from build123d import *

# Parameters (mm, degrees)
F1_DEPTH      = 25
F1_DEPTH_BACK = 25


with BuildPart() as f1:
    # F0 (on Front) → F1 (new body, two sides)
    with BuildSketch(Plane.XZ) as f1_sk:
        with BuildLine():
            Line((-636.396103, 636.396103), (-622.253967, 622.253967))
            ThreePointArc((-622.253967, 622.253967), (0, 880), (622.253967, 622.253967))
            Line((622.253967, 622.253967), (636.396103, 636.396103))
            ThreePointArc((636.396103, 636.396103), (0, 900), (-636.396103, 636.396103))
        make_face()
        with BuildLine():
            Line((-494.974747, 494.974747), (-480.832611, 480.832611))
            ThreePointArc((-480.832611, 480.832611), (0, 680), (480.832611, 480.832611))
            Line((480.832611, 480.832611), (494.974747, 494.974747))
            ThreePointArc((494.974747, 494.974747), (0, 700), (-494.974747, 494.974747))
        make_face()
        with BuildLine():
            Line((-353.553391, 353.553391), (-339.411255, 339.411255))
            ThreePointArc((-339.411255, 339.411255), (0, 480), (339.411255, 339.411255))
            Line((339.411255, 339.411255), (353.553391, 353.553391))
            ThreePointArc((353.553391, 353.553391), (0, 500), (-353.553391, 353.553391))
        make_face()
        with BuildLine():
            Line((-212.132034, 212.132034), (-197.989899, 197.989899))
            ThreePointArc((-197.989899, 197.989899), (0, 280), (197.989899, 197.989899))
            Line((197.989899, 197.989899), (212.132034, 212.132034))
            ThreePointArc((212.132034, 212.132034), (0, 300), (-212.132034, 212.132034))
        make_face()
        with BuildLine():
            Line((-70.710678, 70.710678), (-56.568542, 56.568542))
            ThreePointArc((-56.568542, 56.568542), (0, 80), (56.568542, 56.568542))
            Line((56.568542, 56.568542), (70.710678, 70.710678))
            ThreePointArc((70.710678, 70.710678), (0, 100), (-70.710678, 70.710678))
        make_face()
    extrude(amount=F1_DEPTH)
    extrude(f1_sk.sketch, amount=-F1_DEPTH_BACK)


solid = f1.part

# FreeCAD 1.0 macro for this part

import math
import FreeCAD as App
import Part
import Sketcher

V = App.Vector

doc = App.newDocument("Part")
params = doc.addObject("Spreadsheet::Sheet", "Params")
for row, (alias, value) in enumerate([
    ("sketch1_radius", "900 mm"),
    ("sketch1_radius2", "679.999999 mm"),
    ("sketch1_radius3", "700.000001 mm"),
    ("sketch1_radius4", "480 mm"),
    ("sketch1_radius5", "280.000001 mm"),
    ("pad1_length", "25 mm"),
    ("pad1_length2", "25 mm"),
], start=1):
    params.set(f"A{row}", alias)
    params.set(f"B{row}", "=" + value)
    params.setAlias(f"B{row}", alias)

body = doc.addObject("PartDesign::Body", "Body")
body.AllowCompound = True

# Sketch on XZ plane
sketch1 = doc.addObject("Sketcher::SketchObject", "Sketch")
body.addObject(sketch1)
sketch1.AttachmentSupport = (doc.XZ_Plane, [""])
sketch1.MapMode = "FlatFace"
sketch1.addGeometry([
    Part.LineSegment(V(-636.396103, 636.396103, 0), V(-622.253967, 622.253967, 0)),  # 0
    Part.ArcOfCircle(Part.Circle(V(0, 0.000002, 0), V(0, 0, 1), 879.999998), math.radians(45), math.radians(135)),  # 1
    Part.LineSegment(V(622.253967, 622.253967, 0), V(636.396103, 636.396103, 0)),  # 2
    Part.ArcOfCircle(Part.Circle(V(0, 0, 0), V(0, 0, 1), 900), math.radians(45), math.radians(135)),  # 3
    Part.LineSegment(V(-494.974747, 494.974747, 0), V(-480.832611, 480.832611, 0)),  # 4
    Part.ArcOfCircle(Part.Circle(V(0, 0.000001, 0), V(0, 0, 1), 679.999999), math.radians(45), math.radians(135)),  # 5
    Part.LineSegment(V(480.832611, 480.832611, 0), V(494.974747, 494.974747, 0)),  # 6
    Part.ArcOfCircle(Part.Circle(V(0, -0.000001, 0), V(0, 0, 1), 700.000001), math.radians(45), math.radians(135)),  # 7
    Part.LineSegment(V(-353.553391, 353.553391, 0), V(-339.411255, 339.411255, 0)),  # 8
    Part.ArcOfCircle(Part.Circle(V(0, 0, 0), V(0, 0, 1), 480), math.radians(45), math.radians(135)),  # 9
    Part.LineSegment(V(339.411255, 339.411255, 0), V(353.553391, 353.553391, 0)),  # 10
    Part.ArcOfCircle(Part.Circle(V(0, -0.000002, 0), V(0, 0, 1), 500.000002), math.radians(45), math.radians(135)),  # 11
    Part.LineSegment(V(-212.132034, 212.132034, 0), V(-197.989899, 197.989899, 0)),  # 12
    Part.ArcOfCircle(Part.Circle(V(0, -0.000001, 0), V(0, 0, 1), 280.000001), math.radians(45), math.radians(135)),  # 13
    Part.LineSegment(V(197.989899, 197.989899, 0), V(212.132034, 212.132034, 0)),  # 14
    Part.ArcOfCircle(Part.Circle(V(0, 0.000002, 0), V(0, 0, 1), 299.999998), math.radians(45), math.radians(135)),  # 15
    Part.LineSegment(V(-70.710678, 70.710678, 0), V(-56.568542, 56.568542, 0)),  # 16
    Part.ArcOfCircle(Part.Circle(V(0, 0.000002, 0), V(0, 0, 1), 79.999998), math.radians(44.999999), math.radians(135.000001)),  # 17
    Part.LineSegment(V(56.568542, 56.568542, 0), V(70.710678, 70.710678, 0)),  # 18
    Part.ArcOfCircle(Part.Circle(V(0, 0.000001, 0), V(0, 0, 1), 99.999999), math.radians(45), math.radians(135)),  # 19
], False)
sketch1.addConstraint([
    Sketcher.Constraint("Coincident", 0, 2, 1, 2),
    Sketcher.Constraint("Coincident", 1, 1, 2, 1),
    Sketcher.Constraint("Coincident", 2, 2, 3, 1),
    Sketcher.Constraint("Coincident", 3, 2, 0, 1),
    Sketcher.Constraint("Coincident", 4, 2, 5, 2),
    Sketcher.Constraint("Coincident", 5, 1, 6, 1),
    Sketcher.Constraint("Coincident", 6, 2, 7, 1),
    Sketcher.Constraint("Coincident", 7, 2, 4, 1),
    Sketcher.Constraint("Coincident", 8, 2, 9, 2),
    Sketcher.Constraint("Coincident", 9, 1, 10, 1),
    Sketcher.Constraint("Coincident", 10, 2, 11, 1),
    Sketcher.Constraint("Coincident", 11, 2, 8, 1),
    Sketcher.Constraint("Coincident", 12, 2, 13, 2),
    Sketcher.Constraint("Coincident", 13, 1, 14, 1),
    Sketcher.Constraint("Coincident", 14, 2, 15, 1),
    Sketcher.Constraint("Coincident", 15, 2, 12, 1),
    Sketcher.Constraint("Coincident", 16, 2, 17, 2),
    Sketcher.Constraint("Coincident", 17, 1, 18, 1),
    Sketcher.Constraint("Coincident", 18, 2, 19, 1),
    Sketcher.Constraint("Coincident", 19, 2, 16, 1),
    Sketcher.Constraint("Coincident", 1, 3, -1, 1),
    Sketcher.Constraint("Coincident", 3, 3, -1, 1),
    Sketcher.Constraint("Coincident", 5, 3, -1, 1),
    Sketcher.Constraint("Coincident", 7, 3, -1, 1),
    Sketcher.Constraint("Coincident", 9, 3, -1, 1),
    Sketcher.Constraint("Coincident", 11, 3, -1, 1),
    Sketcher.Constraint("Coincident", 13, 3, -1, 1),
    Sketcher.Constraint("Coincident", 15, 3, -1, 1),
    Sketcher.Constraint("Coincident", 17, 3, -1, 1),
    Sketcher.Constraint("Coincident", 19, 3, -1, 1),
    Sketcher.Constraint("Perpendicular", 0, 2),
    Sketcher.Constraint("Perpendicular", 2, 4),
    Sketcher.Constraint("Perpendicular", 4, 6),
    Sketcher.Constraint("Perpendicular", 6, 8),
    Sketcher.Constraint("Perpendicular", 8, 10),
    Sketcher.Constraint("Perpendicular", 10, 12),
    Sketcher.Constraint("Perpendicular", 12, 14),
    Sketcher.Constraint("Perpendicular", 14, 16),
    Sketcher.Constraint("Perpendicular", 16, 18),
    Sketcher.Constraint("Horizontal", 8, 2, 9, 1),
    Sketcher.Constraint("Horizontal", 12, 2, 13, 1),
    Sketcher.Constraint("Horizontal", 14, 2, 15, 2),
    Sketcher.Constraint("Horizontal", 16, 2, 17, 1),
    Sketcher.Constraint("Equal", 2, 4),
    Sketcher.Constraint("Equal", 6, 8),
    Sketcher.Constraint("Equal", 10, 12),
    Sketcher.Constraint("Equal", 14, 16),
    Sketcher.Constraint("Radius", 3, 900.0),
    Sketcher.Constraint("Radius", 5, 679.999999),
    Sketcher.Constraint("Radius", 7, 700.000001),
    Sketcher.Constraint("Radius", 9, 480.0),
    Sketcher.Constraint("Radius", 13, 280.000001),
    Sketcher.Constraint("Radius", 19, 99.999999),
    Sketcher.Constraint("DistanceX", 12, 2, -1, 1, 197.989899),
    Sketcher.Constraint("DistanceY", 17, 3, 2, 2, 636.396101),
    Sketcher.Constraint("DistanceX", 4, 2, -1, 1, 480.832611),
    Sketcher.Constraint("DistanceX", -1, 1, 10, 2, 353.553391),
    Sketcher.Constraint("DistanceX", -1, 1, 17, 1, 56.568542),
    Sketcher.Constraint("DistanceX", 0, 2, 8, 2, 282.842712),
    Sketcher.Constraint("DistanceX", -1, 1, 6, 2, 494.974747),
])
sketch1.setExpression("Constraints[47]", "Params.sketch1_radius")
sketch1.setExpression("Constraints[48]", "Params.sketch1_radius2")
sketch1.setExpression("Constraints[49]", "Params.sketch1_radius3")
sketch1.setExpression("Constraints[50]", "Params.sketch1_radius4")
sketch1.setExpression("Constraints[51]", "Params.sketch1_radius5")
pad1 = doc.addObject("PartDesign::Pad", "Pad")
body.addObject(pad1)
pad1.Profile = sketch1
pad1.Type = "TwoLengths"
pad1.setExpression("Length", "Params.pad1_length")
pad1.setExpression("Length2", "Params.pad1_length2")

doc.recompute()
